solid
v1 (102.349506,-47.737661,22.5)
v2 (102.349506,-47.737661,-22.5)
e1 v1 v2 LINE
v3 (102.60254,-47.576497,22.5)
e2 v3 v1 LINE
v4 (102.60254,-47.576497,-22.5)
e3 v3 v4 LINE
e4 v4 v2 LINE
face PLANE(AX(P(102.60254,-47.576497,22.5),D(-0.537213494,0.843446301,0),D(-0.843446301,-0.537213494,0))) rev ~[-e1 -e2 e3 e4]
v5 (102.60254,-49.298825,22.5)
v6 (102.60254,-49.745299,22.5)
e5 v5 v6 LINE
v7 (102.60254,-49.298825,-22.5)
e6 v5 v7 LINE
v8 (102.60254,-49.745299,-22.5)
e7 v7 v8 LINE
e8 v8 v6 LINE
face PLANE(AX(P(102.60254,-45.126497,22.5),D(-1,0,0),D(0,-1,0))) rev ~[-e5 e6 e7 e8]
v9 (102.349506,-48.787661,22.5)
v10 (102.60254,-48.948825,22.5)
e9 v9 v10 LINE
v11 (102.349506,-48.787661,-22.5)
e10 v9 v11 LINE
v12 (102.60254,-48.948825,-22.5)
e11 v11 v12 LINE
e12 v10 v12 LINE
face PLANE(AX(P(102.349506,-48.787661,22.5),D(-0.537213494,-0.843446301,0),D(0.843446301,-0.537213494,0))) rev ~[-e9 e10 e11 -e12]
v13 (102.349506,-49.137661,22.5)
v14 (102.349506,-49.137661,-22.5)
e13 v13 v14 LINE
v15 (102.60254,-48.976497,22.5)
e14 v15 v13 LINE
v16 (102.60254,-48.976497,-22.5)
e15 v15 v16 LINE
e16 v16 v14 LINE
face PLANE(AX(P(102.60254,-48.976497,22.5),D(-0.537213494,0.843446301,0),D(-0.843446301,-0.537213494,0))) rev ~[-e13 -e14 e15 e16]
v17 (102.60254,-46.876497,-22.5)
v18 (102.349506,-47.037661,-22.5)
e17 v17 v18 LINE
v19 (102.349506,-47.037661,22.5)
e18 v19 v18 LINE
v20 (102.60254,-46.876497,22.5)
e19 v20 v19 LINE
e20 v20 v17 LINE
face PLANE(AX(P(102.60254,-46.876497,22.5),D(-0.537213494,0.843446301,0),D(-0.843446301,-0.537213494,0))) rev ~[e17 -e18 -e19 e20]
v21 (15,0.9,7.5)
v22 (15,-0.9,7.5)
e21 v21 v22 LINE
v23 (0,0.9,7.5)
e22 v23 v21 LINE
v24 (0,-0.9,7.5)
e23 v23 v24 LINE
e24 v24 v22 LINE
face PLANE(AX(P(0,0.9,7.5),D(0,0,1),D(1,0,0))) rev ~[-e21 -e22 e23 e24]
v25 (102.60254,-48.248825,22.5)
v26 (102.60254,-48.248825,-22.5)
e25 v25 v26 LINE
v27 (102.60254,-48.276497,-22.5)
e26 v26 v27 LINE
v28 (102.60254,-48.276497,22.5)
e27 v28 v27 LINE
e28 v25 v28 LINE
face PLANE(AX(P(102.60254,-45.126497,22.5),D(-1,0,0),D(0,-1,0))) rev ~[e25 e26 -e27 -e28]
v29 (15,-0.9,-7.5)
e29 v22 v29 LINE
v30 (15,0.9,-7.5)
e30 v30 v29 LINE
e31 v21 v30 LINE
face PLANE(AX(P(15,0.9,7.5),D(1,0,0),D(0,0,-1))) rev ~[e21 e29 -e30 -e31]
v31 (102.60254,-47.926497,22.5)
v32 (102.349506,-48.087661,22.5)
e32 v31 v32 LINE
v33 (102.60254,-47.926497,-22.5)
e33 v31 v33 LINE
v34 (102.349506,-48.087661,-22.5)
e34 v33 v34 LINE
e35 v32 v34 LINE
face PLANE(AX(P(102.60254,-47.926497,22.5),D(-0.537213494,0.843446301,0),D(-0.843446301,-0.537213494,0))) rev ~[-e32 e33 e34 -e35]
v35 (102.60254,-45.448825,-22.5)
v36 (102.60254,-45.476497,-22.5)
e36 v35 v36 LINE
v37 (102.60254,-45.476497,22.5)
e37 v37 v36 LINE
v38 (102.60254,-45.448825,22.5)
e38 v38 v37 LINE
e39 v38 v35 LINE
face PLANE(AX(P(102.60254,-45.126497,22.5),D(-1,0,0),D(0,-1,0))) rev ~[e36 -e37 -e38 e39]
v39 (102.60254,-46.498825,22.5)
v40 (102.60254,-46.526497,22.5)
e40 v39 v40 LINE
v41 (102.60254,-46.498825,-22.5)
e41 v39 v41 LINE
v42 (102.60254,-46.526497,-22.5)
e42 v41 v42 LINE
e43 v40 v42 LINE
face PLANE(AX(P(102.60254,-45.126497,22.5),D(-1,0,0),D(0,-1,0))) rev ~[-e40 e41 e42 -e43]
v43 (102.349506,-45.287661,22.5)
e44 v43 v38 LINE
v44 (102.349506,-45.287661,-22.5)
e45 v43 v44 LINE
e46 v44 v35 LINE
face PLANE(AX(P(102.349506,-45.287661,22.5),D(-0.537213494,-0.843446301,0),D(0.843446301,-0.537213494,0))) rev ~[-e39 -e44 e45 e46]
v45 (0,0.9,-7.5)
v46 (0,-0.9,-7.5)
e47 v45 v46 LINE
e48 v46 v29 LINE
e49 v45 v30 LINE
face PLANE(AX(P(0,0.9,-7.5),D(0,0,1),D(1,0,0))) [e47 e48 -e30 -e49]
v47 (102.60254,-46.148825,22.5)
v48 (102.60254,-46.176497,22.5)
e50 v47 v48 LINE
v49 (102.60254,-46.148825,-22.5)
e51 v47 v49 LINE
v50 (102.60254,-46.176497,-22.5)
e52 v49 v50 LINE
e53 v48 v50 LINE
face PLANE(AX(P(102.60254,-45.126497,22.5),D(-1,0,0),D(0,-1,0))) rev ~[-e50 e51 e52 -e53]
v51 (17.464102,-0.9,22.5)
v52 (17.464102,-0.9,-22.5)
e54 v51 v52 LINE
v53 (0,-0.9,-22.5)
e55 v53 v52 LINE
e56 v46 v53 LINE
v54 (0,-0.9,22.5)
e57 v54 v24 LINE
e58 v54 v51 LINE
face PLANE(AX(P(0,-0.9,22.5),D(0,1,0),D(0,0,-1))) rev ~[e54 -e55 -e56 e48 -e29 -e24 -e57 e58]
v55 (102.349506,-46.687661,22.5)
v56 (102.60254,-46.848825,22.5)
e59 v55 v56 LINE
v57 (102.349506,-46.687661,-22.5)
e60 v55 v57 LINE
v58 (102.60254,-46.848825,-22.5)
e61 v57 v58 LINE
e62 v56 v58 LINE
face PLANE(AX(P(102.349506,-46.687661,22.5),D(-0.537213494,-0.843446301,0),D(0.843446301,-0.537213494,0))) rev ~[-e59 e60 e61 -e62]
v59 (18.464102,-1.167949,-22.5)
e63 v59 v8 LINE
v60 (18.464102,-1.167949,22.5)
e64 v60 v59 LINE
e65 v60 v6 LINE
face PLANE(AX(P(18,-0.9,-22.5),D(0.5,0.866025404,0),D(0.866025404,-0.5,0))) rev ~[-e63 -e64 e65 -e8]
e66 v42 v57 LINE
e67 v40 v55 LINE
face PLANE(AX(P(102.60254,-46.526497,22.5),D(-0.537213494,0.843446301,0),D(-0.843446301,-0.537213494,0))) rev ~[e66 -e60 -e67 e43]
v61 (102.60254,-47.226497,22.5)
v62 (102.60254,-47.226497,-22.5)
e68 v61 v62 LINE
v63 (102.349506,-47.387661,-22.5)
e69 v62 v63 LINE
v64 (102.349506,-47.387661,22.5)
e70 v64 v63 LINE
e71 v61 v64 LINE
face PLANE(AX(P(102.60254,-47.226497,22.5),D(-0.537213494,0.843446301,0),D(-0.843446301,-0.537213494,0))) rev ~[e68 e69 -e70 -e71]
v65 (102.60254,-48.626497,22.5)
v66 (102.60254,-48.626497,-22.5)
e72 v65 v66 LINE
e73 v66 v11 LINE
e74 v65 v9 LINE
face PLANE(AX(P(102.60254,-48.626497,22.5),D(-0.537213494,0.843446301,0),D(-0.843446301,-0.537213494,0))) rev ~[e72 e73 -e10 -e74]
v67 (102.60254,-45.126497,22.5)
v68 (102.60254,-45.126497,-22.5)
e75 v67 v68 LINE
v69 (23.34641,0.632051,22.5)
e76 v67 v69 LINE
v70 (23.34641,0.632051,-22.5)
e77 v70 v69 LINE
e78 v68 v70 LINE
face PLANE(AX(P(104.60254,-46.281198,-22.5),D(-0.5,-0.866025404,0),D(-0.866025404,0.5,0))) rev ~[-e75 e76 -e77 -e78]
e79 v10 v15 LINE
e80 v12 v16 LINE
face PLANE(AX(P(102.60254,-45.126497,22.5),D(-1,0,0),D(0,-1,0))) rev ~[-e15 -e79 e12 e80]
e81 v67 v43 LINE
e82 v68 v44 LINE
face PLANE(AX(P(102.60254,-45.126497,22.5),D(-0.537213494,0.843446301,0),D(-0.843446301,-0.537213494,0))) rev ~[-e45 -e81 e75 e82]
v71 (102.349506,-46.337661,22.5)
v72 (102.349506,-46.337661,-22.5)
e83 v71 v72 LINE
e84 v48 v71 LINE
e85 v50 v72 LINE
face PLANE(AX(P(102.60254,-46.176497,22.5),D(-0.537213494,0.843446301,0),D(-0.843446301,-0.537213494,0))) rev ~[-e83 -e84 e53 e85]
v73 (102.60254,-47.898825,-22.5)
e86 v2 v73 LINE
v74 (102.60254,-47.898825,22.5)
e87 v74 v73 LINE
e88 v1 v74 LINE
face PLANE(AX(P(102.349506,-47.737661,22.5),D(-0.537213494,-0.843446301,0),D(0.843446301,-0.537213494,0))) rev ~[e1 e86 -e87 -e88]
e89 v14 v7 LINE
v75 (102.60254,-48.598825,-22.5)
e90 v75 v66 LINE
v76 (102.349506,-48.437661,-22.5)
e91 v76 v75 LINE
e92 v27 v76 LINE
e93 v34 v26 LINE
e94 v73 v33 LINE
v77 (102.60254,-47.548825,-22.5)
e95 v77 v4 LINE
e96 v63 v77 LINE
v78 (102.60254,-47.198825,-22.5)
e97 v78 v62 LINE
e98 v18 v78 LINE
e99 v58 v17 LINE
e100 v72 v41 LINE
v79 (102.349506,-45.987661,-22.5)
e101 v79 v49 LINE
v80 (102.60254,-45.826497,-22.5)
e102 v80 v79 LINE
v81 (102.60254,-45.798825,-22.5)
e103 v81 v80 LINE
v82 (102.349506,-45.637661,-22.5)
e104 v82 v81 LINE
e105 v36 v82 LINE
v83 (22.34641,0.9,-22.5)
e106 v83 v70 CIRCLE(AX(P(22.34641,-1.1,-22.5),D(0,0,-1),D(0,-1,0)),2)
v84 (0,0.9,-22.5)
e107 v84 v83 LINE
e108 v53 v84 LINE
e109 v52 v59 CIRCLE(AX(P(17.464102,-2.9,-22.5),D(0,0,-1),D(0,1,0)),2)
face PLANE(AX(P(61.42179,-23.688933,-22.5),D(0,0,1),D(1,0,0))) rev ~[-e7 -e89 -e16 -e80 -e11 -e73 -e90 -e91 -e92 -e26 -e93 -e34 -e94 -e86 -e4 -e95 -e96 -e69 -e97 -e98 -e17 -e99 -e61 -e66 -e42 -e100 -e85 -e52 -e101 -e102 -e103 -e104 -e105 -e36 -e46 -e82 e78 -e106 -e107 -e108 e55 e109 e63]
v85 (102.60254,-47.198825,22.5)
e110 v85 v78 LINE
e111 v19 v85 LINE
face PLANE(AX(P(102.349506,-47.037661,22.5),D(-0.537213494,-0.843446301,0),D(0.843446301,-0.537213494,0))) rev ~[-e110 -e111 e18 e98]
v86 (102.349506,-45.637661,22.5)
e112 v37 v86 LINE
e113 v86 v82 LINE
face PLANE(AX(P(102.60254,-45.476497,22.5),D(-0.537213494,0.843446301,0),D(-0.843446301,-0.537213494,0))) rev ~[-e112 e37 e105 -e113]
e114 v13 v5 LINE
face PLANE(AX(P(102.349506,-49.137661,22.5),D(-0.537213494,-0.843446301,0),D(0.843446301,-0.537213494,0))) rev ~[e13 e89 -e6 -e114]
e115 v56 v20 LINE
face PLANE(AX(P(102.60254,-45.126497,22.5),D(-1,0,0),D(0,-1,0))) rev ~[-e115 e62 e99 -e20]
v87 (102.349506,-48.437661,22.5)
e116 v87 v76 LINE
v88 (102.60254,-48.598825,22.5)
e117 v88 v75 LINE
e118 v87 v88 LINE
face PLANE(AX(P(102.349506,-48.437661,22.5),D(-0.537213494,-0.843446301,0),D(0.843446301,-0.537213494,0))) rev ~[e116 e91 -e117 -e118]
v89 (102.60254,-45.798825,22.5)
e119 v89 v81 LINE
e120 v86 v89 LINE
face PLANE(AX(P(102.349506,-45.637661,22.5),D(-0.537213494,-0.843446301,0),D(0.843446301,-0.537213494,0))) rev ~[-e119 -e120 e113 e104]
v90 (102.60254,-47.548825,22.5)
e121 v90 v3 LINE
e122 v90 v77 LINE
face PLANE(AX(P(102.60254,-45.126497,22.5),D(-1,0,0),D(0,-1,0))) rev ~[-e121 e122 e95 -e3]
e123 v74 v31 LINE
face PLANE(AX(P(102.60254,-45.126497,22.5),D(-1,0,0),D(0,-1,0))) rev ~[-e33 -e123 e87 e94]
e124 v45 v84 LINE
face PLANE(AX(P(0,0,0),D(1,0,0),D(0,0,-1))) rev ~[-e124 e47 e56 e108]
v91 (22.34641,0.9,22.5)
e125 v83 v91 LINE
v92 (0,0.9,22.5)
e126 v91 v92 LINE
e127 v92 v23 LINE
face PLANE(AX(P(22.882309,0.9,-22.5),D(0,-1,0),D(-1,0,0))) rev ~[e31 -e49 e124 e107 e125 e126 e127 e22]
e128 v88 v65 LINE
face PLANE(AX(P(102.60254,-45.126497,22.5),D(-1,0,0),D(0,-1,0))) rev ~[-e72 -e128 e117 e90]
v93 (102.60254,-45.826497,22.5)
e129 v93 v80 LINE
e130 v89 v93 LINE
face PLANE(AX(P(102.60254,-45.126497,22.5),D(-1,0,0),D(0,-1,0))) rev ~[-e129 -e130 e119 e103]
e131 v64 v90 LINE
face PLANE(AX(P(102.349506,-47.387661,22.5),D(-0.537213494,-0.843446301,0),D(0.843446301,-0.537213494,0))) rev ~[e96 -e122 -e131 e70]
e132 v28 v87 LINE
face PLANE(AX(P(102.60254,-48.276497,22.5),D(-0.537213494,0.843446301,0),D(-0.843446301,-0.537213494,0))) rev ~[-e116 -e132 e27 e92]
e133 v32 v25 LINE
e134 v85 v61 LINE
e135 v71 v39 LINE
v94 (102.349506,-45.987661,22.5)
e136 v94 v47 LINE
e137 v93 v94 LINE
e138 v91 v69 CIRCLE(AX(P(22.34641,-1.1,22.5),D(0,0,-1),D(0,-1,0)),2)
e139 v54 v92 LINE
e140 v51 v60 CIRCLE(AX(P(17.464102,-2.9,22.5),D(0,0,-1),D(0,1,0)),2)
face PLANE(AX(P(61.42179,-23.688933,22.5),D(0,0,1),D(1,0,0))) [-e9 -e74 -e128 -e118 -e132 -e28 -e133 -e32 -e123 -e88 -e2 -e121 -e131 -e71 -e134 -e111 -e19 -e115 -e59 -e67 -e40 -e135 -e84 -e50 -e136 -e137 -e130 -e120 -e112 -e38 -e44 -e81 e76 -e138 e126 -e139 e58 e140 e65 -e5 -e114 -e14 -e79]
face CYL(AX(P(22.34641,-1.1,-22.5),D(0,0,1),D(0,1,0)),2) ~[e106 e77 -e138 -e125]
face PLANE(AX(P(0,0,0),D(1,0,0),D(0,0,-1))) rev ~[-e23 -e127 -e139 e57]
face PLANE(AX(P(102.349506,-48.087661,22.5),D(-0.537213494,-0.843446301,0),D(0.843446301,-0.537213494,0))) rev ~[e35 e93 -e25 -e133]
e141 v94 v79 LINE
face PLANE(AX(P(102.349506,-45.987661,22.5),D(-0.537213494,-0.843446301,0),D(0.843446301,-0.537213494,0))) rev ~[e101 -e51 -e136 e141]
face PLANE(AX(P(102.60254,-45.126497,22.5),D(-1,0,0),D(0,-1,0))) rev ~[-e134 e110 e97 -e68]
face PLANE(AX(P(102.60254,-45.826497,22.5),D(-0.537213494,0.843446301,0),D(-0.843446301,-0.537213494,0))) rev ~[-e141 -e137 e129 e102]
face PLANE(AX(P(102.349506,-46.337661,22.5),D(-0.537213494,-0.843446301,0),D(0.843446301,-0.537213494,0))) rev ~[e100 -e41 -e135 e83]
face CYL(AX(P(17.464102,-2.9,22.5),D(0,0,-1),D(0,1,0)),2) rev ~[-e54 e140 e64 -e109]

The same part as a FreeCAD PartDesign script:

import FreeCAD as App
import Part
import Sketcher

V = App.Vector
Q = App.Units.Quantity


def edges_at(feature, points):
    """Names of the edges that pass closest to the given points."""
    edges = feature.Shape.Edges
    near = lambda p: min(range(len(edges)), key=lambda i: edges[i].distToShape(Part.Vertex(*p))[0])
    return sorted({f"Edge{near(p) + 1}" for p in points})


def add_polygon(sketch, points):
    """Adds a closed chain of lines whose ends are joined by coincident constraints."""
    first, n = sketch.GeometryCount, len(points)
    for a, b in zip(points, points[1:] + points[:1]):
        sketch.addGeometry(Part.LineSegment(App.Vector(*a, 0), App.Vector(*b, 0)), False)
    for i in range(n):
        sketch.addConstraint(Sketcher.Constraint("Coincident", first + i, 2, first + (i + 1) % n, 1))

doc = App.newDocument("Part")
params = doc.addObject("Spreadsheet::Sheet", "Params")
for row, (alias, value) in enumerate([
    ("sketch1_height", "45 mm"),
    ("sketch1_width", "1.8 mm"),
    ("pad1_length", "18 mm"),
    ("sketch2_width", "15 mm"),
    ("pocket1_length", "15 mm"),
    ("sketch3_length", "4 mm"),
    ("sketch3_height", "1.8 mm"),
    ("pad2_length", "45 mm"),
    ("sketch4_length", "4 mm"),
    ("pocket2_length", "45 mm"),
    ("sketch5_length", "0.3 mm"),
    ("pocket3_length", "45 mm"),
    ("fillet_radius", "2 mm"),
    ("fillet2_radius", "2 mm"),
], start=1):
    params.set(f"A{row}", alias)
    params.set(f"B{row}", "=" + value)
    params.setAlias(f"B{row}", alias)

body = doc.addObject("PartDesign::Body", "Body")

sketch1 = body.newObject("Sketcher::SketchObject", "Sketch")
sketch1.AttachmentSupport = (doc.getObject("YZ_Plane"), [""])
sketch1.MapMode = "FlatFace"
add_polygon(sketch1, [(0.9, 22.5), (-0.9, 22.5), (-0.9, -22.5), (0.9, -22.5)])
sketch1.addConstraint([
    Sketcher.Constraint("Horizontal", 0),
    Sketcher.Constraint("Vertical", 1),
    Sketcher.Constraint("Horizontal", 2),
    Sketcher.Constraint("Vertical", 3),
    Sketcher.Constraint("Symmetric", 0, 2, 2, 2, -1, 1),
    Sketcher.Constraint("DistanceY", 1, 2, 1, 1, 45.0),
    Sketcher.Constraint("DistanceX", 0, 2, 0, 1, 1.8),
])
sketch1.setExpression("Constraints[9]", "Params.sketch1_height")
sketch1.setExpression("Constraints[10]", "Params.sketch1_width")
pad1 = body.newObject("PartDesign::Pad", "Pad")
pad1.Profile = sketch1
pad1.setExpression("Length", "Params.pad1_length")

sketch2 = body.newObject("Sketcher::SketchObject", "Sketch001")
sketch2.AttachmentSupport = (doc.getObject("XZ_Plane"), [""])
sketch2.MapMode = "FlatFace"
sketch2.AttachmentOffset = App.Placement(V(0, 0, -0.9), App.Rotation())
add_polygon(sketch2, [(0, -8), (0, 8), (15, 8), (15, -8)])
sketch2.addConstraint([
    Sketcher.Constraint("Vertical", 0),
    Sketcher.Constraint("Horizontal", 1),
    Sketcher.Constraint("Vertical", 2),
    Sketcher.Constraint("Horizontal", 3),
    Sketcher.Constraint("Symmetric", 0, 2, 3, 2, -1, 1),
    Sketcher.Constraint("Equal", 3, 0),
    Sketcher.Constraint("DistanceX", 1, 1, 1, 2, 15.0),
])
sketch2.setExpression("Constraints[10]", "Params.sketch2_width")
pocket1 = body.newObject("PartDesign::Pocket", "Pocket")
pocket1.Profile = sketch2
pocket1.setExpression("Length", "Params.pocket1_length")
pocket1.Reversed = True

sketch3 = body.newObject("Sketcher::SketchObject", "Sketch002")
sketch3.AttachmentSupport = (doc.getObject("XY_Plane"), [""])
sketch3.MapMode = "FlatFace"
sketch3.AttachmentOffset = App.Placement(V(0, 0, -22.5), App.Rotation())
add_polygon(sketch3, [(102.6, -49.7), (18, -0.9), (18, 0.9), (22.9, 0.9), (104.6, -46.3)])
sketch3.addConstraint([
    Sketcher.Constraint("Vertical", 1),
    Sketcher.Constraint("Horizontal", 2),
    Sketcher.Constraint("Parallel", 0, 3),
    Sketcher.Constraint("Perpendicular", 3, 4),
    Sketcher.Constraint("Angle", 0, Q("150 deg")),
    Sketcher.Constraint("Distance", 4, 4.0),
    Sketcher.Constraint("DistanceY", 1, 1, 1, 2, 1.8),
    Sketcher.Constraint("DistanceX", -1, 1, 0, 2, 18.0),
    Sketcher.Constraint("DistanceY", 0, 2, -1, 1, 0.9),
    Sketcher.Constraint("Distance", 0, 97.690599),
])
sketch3.setExpression("Constraints[10]", "Params.sketch3_length")
sketch3.setExpression("Constraints[11]", "Params.sketch3_height")
pad2 = body.newObject("PartDesign::Pad", "Pad001")
pad2.Profile = sketch3
pad2.setExpression("Length", "Params.pad2_length")

sketch4 = body.newObject("Sketcher::SketchObject", "Sketch003")
sketch4.AttachmentSupport = (doc.getObject("XY_Plane"), [""])
sketch4.MapMode = "FlatFace"
sketch4.AttachmentOffset = App.Placement(V(0, 0, 22.5), App.Rotation())
add_polygon(sketch4, [(102.6, -45.1), (102.6, -49.7), (104.6, -46.3)])
sketch4.addConstraint([
    Sketcher.Constraint("Vertical", 0),
    Sketcher.Constraint("Perpendicular", 1, 2),
    Sketcher.Constraint("Angle", 1, Q("60 deg")),
    Sketcher.Constraint("Distance", 1, 4.0),
    Sketcher.Constraint("DistanceY", 0, 2, -1, 1, 49.745299),
    Sketcher.Constraint("DistanceX", -1, 1, 0, 2, 102.60254),
])
sketch4.setExpression("Constraints[6]", "Params.sketch4_length")
pocket2 = body.newObject("PartDesign::Pocket", "Pocket001")
pocket2.Profile = sketch4
pocket2.setExpression("Length", "Params.pocket2_length")

sketch5 = body.newObject("Sketcher::SketchObject", "Sketch004")
sketch5.AttachmentSupport = (doc.getObject("XY_Plane"), [""])
sketch5.MapMode = "FlatFace"
sketch5.AttachmentOffset = App.Placement(V(0, 0, 22.5), App.Rotation())
add_polygon(sketch5, [(102.6, -45.13), (102.35, -45.29), (102.6, -45.45)])
add_polygon(sketch5, [(102.6, -45.48), (102.35, -45.64), (102.6, -45.8)])
add_polygon(sketch5, [(102.6, -45.83), (102.35, -45.99), (102.6, -46.15)])
add_polygon(sketch5, [(102.6, -46.18), (102.35, -46.34), (102.6, -46.5)])
add_polygon(sketch5, [(102.6, -46.53), (102.35, -46.69), (102.6, -46.85)])
add_polygon(sketch5, [(102.6, -46.88), (102.35, -47.04), (102.6, -47.2)])
add_polygon(sketch5, [(102.6, -47.23), (102.35, -47.39), (102.6, -47.55)])
add_polygon(sketch5, [(102.6, -47.58), (102.35, -47.74), (102.6, -47.9)])
add_polygon(sketch5, [(102.6, -47.93), (102.35, -48.09), (102.6, -48.25)])
add_polygon(sketch5, [(102.6, -48.28), (102.35, -48.44), (102.6, -48.6)])
add_polygon(sketch5, [(102.6, -48.63), (102.35, -48.79), (102.6, -48.95)])
add_polygon(sketch5, [(102.6, -48.98), (102.35, -49.14), (102.6, -49.3)])
sketch5.addConstraint([
    Sketcher.Constraint("Vertical", 2),
    Sketcher.Constraint("Vertical", 5),
    Sketcher.Constraint("Vertical", 8),
    Sketcher.Constraint("Vertical", 11),
    Sketcher.Constraint("Vertical", 14),
    Sketcher.Constraint("Vertical", 17),
    Sketcher.Constraint("Vertical", 20),
    Sketcher.Constraint("Vertical", 23),
    Sketcher.Constraint("Vertical", 26),
    Sketcher.Constraint("Vertical", 29),
    Sketcher.Constraint("Vertical", 32),
    Sketcher.Constraint("Vertical", 35),
    Sketcher.Constraint("Parallel", 0, 3),
    Sketcher.Constraint("Parallel", 1, 4),
    Sketcher.Constraint("Parallel", 3, 6),
    Sketcher.Constraint("Parallel", 4, 7),
    Sketcher.Constraint("Parallel", 6, 9),
    Sketcher.Constraint("Parallel", 7, 10),
    Sketcher.Constraint("Parallel", 9, 12),
    Sketcher.Constraint("Parallel", 10, 13),
    Sketcher.Constraint("Parallel", 12, 15),
    Sketcher.Constraint("Parallel", 13, 16),
    Sketcher.Constraint("Parallel", 15, 18),
    Sketcher.Constraint("Parallel", 16, 19),
    Sketcher.Constraint("Parallel", 18, 21),
    Sketcher.Constraint("Parallel", 19, 22),
    Sketcher.Constraint("Parallel", 21, 24),
    Sketcher.Constraint("Parallel", 22, 25),
    Sketcher.Constraint("Parallel", 24, 27),
    Sketcher.Constraint("Parallel", 25, 28),
    Sketcher.Constraint("Parallel", 27, 30),
    Sketcher.Constraint("Parallel", 28, 31),
    Sketcher.Constraint("Parallel", 30, 33),
    Sketcher.Constraint("Parallel", 31, 34),
    Sketcher.Constraint("Vertical", 0, 2, 3, 2),
    Sketcher.Constraint("Vertical", 2, 2, 4, 2),
    Sketcher.Constraint("Vertical", 3, 2, 6, 2),
    Sketcher.Constraint("Vertical", 5, 2, 7, 2),
    Sketcher.Constraint("Vertical", 6, 2, 9, 2),
    Sketcher.Constraint("Vertical", 8, 2, 10, 2),
    Sketcher.Constraint("Vertical", 9, 2, 12, 2),
    Sketcher.Constraint("Vertical", 11, 2, 13, 2),
    Sketcher.Constraint("Vertical", 12, 2, 15, 2),
    Sketcher.Constraint("Vertical", 14, 2, 16, 2),
    Sketcher.Constraint("Vertical", 15, 2, 18, 2),
    Sketcher.Constraint("Vertical", 17, 2, 19, 2),
    Sketcher.Constraint("Vertical", 18, 2, 21, 2),
    Sketcher.Constraint("Vertical", 20, 2, 22, 2),
    Sketcher.Constraint("Vertical", 21, 2, 24, 2),
    Sketcher.Constraint("Vertical", 23, 2, 25, 2),
    Sketcher.Constraint("Vertical", 24, 2, 27, 2),
    Sketcher.Constraint("Vertical", 26, 2, 28, 2),
    Sketcher.Constraint("Vertical", 27, 2, 30, 2),
    Sketcher.Constraint("Vertical", 29, 2, 31, 2),
    Sketcher.Constraint("Vertical", 30, 2, 33, 2),
    Sketcher.Constraint("Vertical", 32, 2, 34, 2),
    Sketcher.Constraint("Equal", 0, 1),
    Sketcher.Constraint("Distance", 0, 0.3),
    Sketcher.Constraint("DistanceY", 6, 2, 0, 2, 0.7),
    Sketcher.Constraint("DistanceY", 9, 2, 3, 2, 0.7),
    Sketcher.Constraint("DistanceY", 12, 2, 6, 2, 0.7),
    Sketcher.Constraint("DistanceY", 15, 2, 9, 2, 0.7),
    Sketcher.Constraint("DistanceY", 18, 2, 12, 2, 0.7),
    Sketcher.Constraint("DistanceY", 21, 2, 15, 2, 0.7),
    Sketcher.Constraint("DistanceY", 24, 2, 18, 2, 0.7),
    Sketcher.Constraint("DistanceY", 27, 2, 21, 2, 0.7),
    Sketcher.Constraint("DistanceY", 30, 2, 24, 2, 0.7),
    Sketcher.Constraint("DistanceY", 33, 2, 27, 2, 0.7),
    Sketcher.Constraint("DistanceY", 3, 2, 0, 2, 0.35),
    Sketcher.Constraint("DistanceY", 2, 1, 2, 2, 0.322328),
    Sketcher.Constraint("DistanceY", 0, 2, -1, 1, 45.287661),
    Sketcher.Constraint("DistanceX", -1, 1, 1, 2, 102.60254),
])
sketch5.setExpression("Constraints[93]", "Params.sketch5_length")
pocket3 = body.newObject("PartDesign::Pocket", "Pocket002")
pocket3.Profile = sketch5
pocket3.setExpression("Length", "Params.pocket3_length")
doc.recompute()

fillet = body.newObject("PartDesign::Fillet", "Fillet")
fillet.Base = (pocket3, edges_at(pocket3, [(22.882, 0.9, 0)]))
fillet.setExpression("Radius", "Params.fillet_radius")
doc.recompute()

fillet2 = body.newObject("PartDesign::Fillet", "Fillet001")
fillet2.Base = (fillet, edges_at(fillet, [(18, -0.9, 0)]))
fillet2.setExpression("Radius", "Params.fillet2_radius")

doc.recompute()
